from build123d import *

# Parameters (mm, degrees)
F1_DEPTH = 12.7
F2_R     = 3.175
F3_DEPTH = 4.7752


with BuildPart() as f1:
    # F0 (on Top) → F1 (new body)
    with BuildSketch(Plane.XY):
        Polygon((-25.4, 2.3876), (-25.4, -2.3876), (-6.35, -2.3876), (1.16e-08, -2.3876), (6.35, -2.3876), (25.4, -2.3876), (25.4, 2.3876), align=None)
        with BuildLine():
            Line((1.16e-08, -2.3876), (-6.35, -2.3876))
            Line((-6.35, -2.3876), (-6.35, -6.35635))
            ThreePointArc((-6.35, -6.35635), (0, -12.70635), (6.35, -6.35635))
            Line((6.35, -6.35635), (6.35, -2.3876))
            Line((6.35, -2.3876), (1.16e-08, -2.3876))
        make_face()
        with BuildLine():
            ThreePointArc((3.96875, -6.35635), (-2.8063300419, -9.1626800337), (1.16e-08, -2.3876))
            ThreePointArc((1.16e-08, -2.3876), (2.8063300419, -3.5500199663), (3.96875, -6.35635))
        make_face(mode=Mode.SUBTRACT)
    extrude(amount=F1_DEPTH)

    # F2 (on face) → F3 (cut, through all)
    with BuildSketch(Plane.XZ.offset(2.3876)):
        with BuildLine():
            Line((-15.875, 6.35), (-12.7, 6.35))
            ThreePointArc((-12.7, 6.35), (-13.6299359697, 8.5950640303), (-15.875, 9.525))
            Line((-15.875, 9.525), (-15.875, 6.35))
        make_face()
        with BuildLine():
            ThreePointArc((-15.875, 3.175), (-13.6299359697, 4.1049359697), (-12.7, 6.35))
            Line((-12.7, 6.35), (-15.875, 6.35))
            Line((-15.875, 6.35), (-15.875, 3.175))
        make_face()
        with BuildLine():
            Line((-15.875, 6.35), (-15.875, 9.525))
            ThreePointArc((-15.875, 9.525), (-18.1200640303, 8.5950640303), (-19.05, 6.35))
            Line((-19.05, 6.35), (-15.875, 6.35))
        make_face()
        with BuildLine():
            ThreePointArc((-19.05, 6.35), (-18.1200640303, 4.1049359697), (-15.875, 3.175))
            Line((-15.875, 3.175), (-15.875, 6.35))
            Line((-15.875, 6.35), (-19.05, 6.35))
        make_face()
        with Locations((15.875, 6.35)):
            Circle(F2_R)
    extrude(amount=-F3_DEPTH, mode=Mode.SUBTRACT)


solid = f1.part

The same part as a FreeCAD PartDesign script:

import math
import FreeCAD as App
import Part
import Sketcher
from FreeCAD import Vector
Q = App.Units.Quantity

doc = App.newDocument("Part")
body = doc.addObject("PartDesign::Body", "Body")

# Sketch on XY plane
sketch1 = doc.addObject("Sketcher::SketchObject", "Sketch")
body.addObject(sketch1)
sketch1.AttachmentSupport = (doc.XY_Plane, [""])
sketch1.MapMode = "FlatFace"
sketch1.addGeometry(Part.LineSegment(Vector(-25.4, 2.4, 0), Vector(-25.4, -2.4, 0)), False)
sketch1.addGeometry(Part.LineSegment(Vector(-25.4, -2.4, 0), Vector(-6.3, -2.4, 0)), False)
sketch1.addGeometry(Part.LineSegment(Vector(-6.3, -2.4, 0), Vector(-6.3, -6.4, 0)), False)
sketch1.addGeometry(Part.ArcOfCircle(Part.Circle(Vector(0, -6.4, 0), Vector(0, 0, 1), 6.3), math.radians(180), math.radians(360)), False)
sketch1.addGeometry(Part.LineSegment(Vector(6.3, -6.4, 0), Vector(6.3, -2.4, 0)), False)
sketch1.addGeometry(Part.LineSegment(Vector(6.3, -2.4, 0), Vector(25.4, -2.4, 0)), False)
sketch1.addGeometry(Part.LineSegment(Vector(25.4, -2.4, 0), Vector(25.4, 2.4, 0)), False)
sketch1.addGeometry(Part.LineSegment(Vector(25.4, 2.4, 0), Vector(-25.4, 2.4, 0)), False)
sketch1.addGeometry(Part.ArcOfCircle(Part.Circle(Vector(0, -6.4, 0), Vector(0, 0, 1), 4), math.radians(0), math.radians(90)), False)
sketch1.addGeometry(Part.ArcOfCircle(Part.Circle(Vector(0, -6.4, 0), Vector(0, 0, 1), 4), math.radians(90), math.radians(360)), False)
sketch1.addConstraint(Sketcher.Constraint("Coincident", 0, 2, 1, 1))
sketch1.addConstraint(Sketcher.Constraint("Coincident", 1, 2, 2, 1))
sketch1.addConstraint(Sketcher.Constraint("Tangent", 2, 2, 3, 1))
sketch1.addConstraint(Sketcher.Constraint("Tangent", 3, 2, 4, 1))
sketch1.addConstraint(Sketcher.Constraint("Coincident", 4, 2, 5, 1))
sketch1.addConstraint(Sketcher.Constraint("Coincident", 5, 2, 6, 1))
sketch1.addConstraint(Sketcher.Constraint("Coincident", 6, 2, 7, 1))
sketch1.addConstraint(Sketcher.Constraint("Coincident", 7, 2, 0, 1))
sketch1.addConstraint(Sketcher.Constraint("Tangent", 8, 1, 9, 2))
sketch1.addConstraint(Sketcher.Constraint("Coincident", 9, 1, 8, 2))
sketch1.addConstraint(Sketcher.Constraint("Vertical", 0))
sketch1.addConstraint(Sketcher.Constraint("Horizontal", 1))
sketch1.addConstraint(Sketcher.Constraint("Vertical", 2))
sketch1.addConstraint(Sketcher.Constraint("Vertical", 4))
sketch1.addConstraint(Sketcher.Constraint("Horizontal", 5))
sketch1.addConstraint(Sketcher.Constraint("Vertical", 6))
sketch1.addConstraint(Sketcher.Constraint("Horizontal", 7))
sketch1.addConstraint(Sketcher.Constraint("Coincident", 8, 3, 3, 3))
sketch1.addConstraint(Sketcher.Constraint("Symmetric", 0, 2, 6, 2, -1, 1))
sketch1.addConstraint(Sketcher.Constraint("Symmetric", 1, 2, 4, 2, -2))
sketch1.addConstraint(Sketcher.Constraint("PointOnObject", 9, 1, -2))
sketch1.addConstraint(Sketcher.Constraint("Horizontal", 3, 2, 8, 1))
sketch1.addConstraint(Sketcher.Constraint("Horizontal", 5, 2, 9, 1))
sketch1.addConstraint(Sketcher.Constraint("DistanceX", 7, 2, 7, 1, Q("2 in")))
sketch1.addConstraint(Sketcher.Constraint("Radius", 3, Q("0.25 in")))
sketch1.addConstraint(Sketcher.Constraint("Radius", 8, Q("0.15625 in")))
sketch1.addConstraint(Sketcher.Constraint("DistanceY", 0, 2, 0, 1, Q("0.188 in")))
pad1 = doc.addObject("PartDesign::Pad", "Pad")
body.addObject(pad1)
pad1.Profile = sketch1
pad1.Length = Q("0.5 in")

# Sketch on XZ plane
sketch2 = doc.addObject("Sketcher::SketchObject", "Sketch001")
body.addObject(sketch2)
sketch2.AttachmentSupport = (doc.XZ_Plane, [""])
sketch2.MapMode = "FlatFace"
sketch2.AttachmentOffset = App.Placement(Vector(0, 0, 0.094 * 25.4), App.Rotation())
sketch2.addGeometry(Part.ArcOfCircle(Part.Circle(Vector(-15.9, 6.3, 0), Vector(0, 0, 1), 3.2), math.radians(0), math.radians(90)), False)
sketch2.addGeometry(Part.ArcOfCircle(Part.Circle(Vector(-15.9, 6.3, 0), Vector(0, 0, 1), 3.2), math.radians(90), math.radians(180)), False)
sketch2.addGeometry(Part.ArcOfCircle(Part.Circle(Vector(-15.9, 6.3, 0), Vector(0, 0, 1), 3.2), math.radians(180), math.radians(270)), False)
sketch2.addGeometry(Part.ArcOfCircle(Part.Circle(Vector(-15.9, 6.3, 0), Vector(0, 0, 1), 3.2), math.radians(-90), math.radians(0)), False)
sketch2.addGeometry(Part.Circle(Vector(15.9, 6.3, 0), Vector(0, 0, 1), 3.2), False)
sketch2.addConstraint(Sketcher.Constraint("Tangent", 0, 2, 1, 1))
sketch2.addConstraint(Sketcher.Constraint("Tangent", 1, 2, 2, 1))
sketch2.addConstraint(Sketcher.Constraint("Tangent", 2, 2, 3, 1))
sketch2.addConstraint(Sketcher.Constraint("Tangent", 3, 2, 0, 1))
sketch2.addConstraint(Sketcher.Constraint("Equal", 0, 1))
sketch2.addConstraint(Sketcher.Constraint("Equal", 3, 4))
sketch2.addConstraint(Sketcher.Constraint("Symmetric", 0, 3, 4, 3, -2))
sketch2.addConstraint(Sketcher.Constraint("Horizontal", 4, 3, 1, 2))
sketch2.addConstraint(Sketcher.Constraint("Horizontal", 1, 2, 3, 2))
sketch2.addConstraint(Sketcher.Constraint("Vertical", 3, 3, 0, 2))
sketch2.addConstraint(Sketcher.Constraint("Vertical", 0, 2, 2, 2))
sketch2.addConstraint(Sketcher.Constraint("Diameter", 4, Q("0.25 in")))
sketch2.addConstraint(Sketcher.Constraint("DistanceX", 3, 2, -1, 1, Q("0.5 in")))
sketch2.addConstraint(Sketcher.Constraint("DistanceY", -1, 1, 0, 3, Q("0.25 in")))
pocket1 = doc.addObject("PartDesign::Pocket", "Pocket")
body.addObject(pocket1)
pocket1.Profile = sketch2
pocket1.Type = "ThroughAll"

doc.recompute()
